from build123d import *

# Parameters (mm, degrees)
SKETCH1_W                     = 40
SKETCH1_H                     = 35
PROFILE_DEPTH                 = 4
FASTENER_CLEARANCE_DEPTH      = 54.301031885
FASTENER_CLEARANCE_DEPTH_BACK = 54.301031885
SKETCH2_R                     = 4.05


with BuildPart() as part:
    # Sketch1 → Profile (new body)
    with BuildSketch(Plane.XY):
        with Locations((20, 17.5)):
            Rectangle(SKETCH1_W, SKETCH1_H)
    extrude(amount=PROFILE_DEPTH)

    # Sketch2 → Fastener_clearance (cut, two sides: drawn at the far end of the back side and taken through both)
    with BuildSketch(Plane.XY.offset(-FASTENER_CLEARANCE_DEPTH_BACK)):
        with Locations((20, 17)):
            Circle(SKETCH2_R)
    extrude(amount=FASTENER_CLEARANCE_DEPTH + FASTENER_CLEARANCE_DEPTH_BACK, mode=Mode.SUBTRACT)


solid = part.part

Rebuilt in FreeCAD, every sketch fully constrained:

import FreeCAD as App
import Part
import Sketcher
from FreeCAD import Vector


def add_polygon(sketch, points):
    """Adds a closed chain of lines whose ends are joined by coincident constraints."""
    first, n = sketch.GeometryCount, len(points)
    for a, b in zip(points, points[1:] + points[:1]):
        sketch.addGeometry(Part.LineSegment(App.Vector(*a, 0), App.Vector(*b, 0)), False)
    for i in range(n):
        sketch.addConstraint(Sketcher.Constraint("Coincident", first + i, 2, first + (i + 1) % n, 1))

doc = App.newDocument("Part")
params = doc.addObject("Spreadsheet::Sheet", "Params")
for row, (alias, value) in enumerate([
    ("sketch1_width", "40 mm"),
    ("sketch1_height", "35 mm"),
    ("pad1_length", "4 mm"),
    ("sketch2_diameter", "8.1 mm"),
], start=1):
    params.set(f"A{row}", alias)
    params.set(f"B{row}", "=" + value)
    params.setAlias(f"B{row}", alias)

body = doc.addObject("PartDesign::Body", "Body")

# Sketch on XY plane
sketch1 = body.newObject("Sketcher::SketchObject", "Sketch")
sketch1.AttachmentSupport = (doc.getObject("XY_Plane"), [""])
sketch1.MapMode = "FlatFace"
add_polygon(sketch1, [(0, 35), (0, 0), (40, 0), (40, 35)])  # lines 0-3
sketch1.addConstraint([
    Sketcher.Constraint("Vertical", 0),
    Sketcher.Constraint("Horizontal", 1),
    Sketcher.Constraint("Vertical", 2),
    Sketcher.Constraint("Horizontal", 3),
    Sketcher.Constraint("Coincident", 0, 2, -1, 1),
    Sketcher.Constraint("DistanceX", 1, 1, 1, 2, 40.0),
    Sketcher.Constraint("DistanceY", 0, 2, 0, 1, 35.0),
])
sketch1.setExpression("Constraints[9]", "Params.sketch1_width")
sketch1.setExpression("Constraints[10]", "Params.sketch1_height")
pad1 = body.newObject("PartDesign::Pad", "Pad")
pad1.Profile = sketch1
pad1.setExpression("Length", "Params.pad1_length")

# Sketch on XY plane
sketch2 = body.newObject("Sketcher::SketchObject", "Sketch001")
sketch2.AttachmentSupport = (doc.getObject("XY_Plane"), [""])
sketch2.MapMode = "FlatFace"
sketch2.addGeometry(Part.Circle(Vector(20, 17, 0), Vector(0, 0, 1), 4), False)
sketch2.addConstraint([
    Sketcher.Constraint("Diameter", 0, 8.1),
    Sketcher.Constraint("DistanceX", -1, 1, 0, 3, 20.0),
    Sketcher.Constraint("DistanceY", -1, 1, 0, 3, 17.0),
])
sketch2.setExpression("Constraints[0]", "Params.sketch2_diameter")
pocket1 = body.newObject("PartDesign::Pocket", "Pocket")
pocket1.Profile = sketch2
pocket1.Type = "ThroughAll"
pocket1.Midplane = True

doc.recompute()
